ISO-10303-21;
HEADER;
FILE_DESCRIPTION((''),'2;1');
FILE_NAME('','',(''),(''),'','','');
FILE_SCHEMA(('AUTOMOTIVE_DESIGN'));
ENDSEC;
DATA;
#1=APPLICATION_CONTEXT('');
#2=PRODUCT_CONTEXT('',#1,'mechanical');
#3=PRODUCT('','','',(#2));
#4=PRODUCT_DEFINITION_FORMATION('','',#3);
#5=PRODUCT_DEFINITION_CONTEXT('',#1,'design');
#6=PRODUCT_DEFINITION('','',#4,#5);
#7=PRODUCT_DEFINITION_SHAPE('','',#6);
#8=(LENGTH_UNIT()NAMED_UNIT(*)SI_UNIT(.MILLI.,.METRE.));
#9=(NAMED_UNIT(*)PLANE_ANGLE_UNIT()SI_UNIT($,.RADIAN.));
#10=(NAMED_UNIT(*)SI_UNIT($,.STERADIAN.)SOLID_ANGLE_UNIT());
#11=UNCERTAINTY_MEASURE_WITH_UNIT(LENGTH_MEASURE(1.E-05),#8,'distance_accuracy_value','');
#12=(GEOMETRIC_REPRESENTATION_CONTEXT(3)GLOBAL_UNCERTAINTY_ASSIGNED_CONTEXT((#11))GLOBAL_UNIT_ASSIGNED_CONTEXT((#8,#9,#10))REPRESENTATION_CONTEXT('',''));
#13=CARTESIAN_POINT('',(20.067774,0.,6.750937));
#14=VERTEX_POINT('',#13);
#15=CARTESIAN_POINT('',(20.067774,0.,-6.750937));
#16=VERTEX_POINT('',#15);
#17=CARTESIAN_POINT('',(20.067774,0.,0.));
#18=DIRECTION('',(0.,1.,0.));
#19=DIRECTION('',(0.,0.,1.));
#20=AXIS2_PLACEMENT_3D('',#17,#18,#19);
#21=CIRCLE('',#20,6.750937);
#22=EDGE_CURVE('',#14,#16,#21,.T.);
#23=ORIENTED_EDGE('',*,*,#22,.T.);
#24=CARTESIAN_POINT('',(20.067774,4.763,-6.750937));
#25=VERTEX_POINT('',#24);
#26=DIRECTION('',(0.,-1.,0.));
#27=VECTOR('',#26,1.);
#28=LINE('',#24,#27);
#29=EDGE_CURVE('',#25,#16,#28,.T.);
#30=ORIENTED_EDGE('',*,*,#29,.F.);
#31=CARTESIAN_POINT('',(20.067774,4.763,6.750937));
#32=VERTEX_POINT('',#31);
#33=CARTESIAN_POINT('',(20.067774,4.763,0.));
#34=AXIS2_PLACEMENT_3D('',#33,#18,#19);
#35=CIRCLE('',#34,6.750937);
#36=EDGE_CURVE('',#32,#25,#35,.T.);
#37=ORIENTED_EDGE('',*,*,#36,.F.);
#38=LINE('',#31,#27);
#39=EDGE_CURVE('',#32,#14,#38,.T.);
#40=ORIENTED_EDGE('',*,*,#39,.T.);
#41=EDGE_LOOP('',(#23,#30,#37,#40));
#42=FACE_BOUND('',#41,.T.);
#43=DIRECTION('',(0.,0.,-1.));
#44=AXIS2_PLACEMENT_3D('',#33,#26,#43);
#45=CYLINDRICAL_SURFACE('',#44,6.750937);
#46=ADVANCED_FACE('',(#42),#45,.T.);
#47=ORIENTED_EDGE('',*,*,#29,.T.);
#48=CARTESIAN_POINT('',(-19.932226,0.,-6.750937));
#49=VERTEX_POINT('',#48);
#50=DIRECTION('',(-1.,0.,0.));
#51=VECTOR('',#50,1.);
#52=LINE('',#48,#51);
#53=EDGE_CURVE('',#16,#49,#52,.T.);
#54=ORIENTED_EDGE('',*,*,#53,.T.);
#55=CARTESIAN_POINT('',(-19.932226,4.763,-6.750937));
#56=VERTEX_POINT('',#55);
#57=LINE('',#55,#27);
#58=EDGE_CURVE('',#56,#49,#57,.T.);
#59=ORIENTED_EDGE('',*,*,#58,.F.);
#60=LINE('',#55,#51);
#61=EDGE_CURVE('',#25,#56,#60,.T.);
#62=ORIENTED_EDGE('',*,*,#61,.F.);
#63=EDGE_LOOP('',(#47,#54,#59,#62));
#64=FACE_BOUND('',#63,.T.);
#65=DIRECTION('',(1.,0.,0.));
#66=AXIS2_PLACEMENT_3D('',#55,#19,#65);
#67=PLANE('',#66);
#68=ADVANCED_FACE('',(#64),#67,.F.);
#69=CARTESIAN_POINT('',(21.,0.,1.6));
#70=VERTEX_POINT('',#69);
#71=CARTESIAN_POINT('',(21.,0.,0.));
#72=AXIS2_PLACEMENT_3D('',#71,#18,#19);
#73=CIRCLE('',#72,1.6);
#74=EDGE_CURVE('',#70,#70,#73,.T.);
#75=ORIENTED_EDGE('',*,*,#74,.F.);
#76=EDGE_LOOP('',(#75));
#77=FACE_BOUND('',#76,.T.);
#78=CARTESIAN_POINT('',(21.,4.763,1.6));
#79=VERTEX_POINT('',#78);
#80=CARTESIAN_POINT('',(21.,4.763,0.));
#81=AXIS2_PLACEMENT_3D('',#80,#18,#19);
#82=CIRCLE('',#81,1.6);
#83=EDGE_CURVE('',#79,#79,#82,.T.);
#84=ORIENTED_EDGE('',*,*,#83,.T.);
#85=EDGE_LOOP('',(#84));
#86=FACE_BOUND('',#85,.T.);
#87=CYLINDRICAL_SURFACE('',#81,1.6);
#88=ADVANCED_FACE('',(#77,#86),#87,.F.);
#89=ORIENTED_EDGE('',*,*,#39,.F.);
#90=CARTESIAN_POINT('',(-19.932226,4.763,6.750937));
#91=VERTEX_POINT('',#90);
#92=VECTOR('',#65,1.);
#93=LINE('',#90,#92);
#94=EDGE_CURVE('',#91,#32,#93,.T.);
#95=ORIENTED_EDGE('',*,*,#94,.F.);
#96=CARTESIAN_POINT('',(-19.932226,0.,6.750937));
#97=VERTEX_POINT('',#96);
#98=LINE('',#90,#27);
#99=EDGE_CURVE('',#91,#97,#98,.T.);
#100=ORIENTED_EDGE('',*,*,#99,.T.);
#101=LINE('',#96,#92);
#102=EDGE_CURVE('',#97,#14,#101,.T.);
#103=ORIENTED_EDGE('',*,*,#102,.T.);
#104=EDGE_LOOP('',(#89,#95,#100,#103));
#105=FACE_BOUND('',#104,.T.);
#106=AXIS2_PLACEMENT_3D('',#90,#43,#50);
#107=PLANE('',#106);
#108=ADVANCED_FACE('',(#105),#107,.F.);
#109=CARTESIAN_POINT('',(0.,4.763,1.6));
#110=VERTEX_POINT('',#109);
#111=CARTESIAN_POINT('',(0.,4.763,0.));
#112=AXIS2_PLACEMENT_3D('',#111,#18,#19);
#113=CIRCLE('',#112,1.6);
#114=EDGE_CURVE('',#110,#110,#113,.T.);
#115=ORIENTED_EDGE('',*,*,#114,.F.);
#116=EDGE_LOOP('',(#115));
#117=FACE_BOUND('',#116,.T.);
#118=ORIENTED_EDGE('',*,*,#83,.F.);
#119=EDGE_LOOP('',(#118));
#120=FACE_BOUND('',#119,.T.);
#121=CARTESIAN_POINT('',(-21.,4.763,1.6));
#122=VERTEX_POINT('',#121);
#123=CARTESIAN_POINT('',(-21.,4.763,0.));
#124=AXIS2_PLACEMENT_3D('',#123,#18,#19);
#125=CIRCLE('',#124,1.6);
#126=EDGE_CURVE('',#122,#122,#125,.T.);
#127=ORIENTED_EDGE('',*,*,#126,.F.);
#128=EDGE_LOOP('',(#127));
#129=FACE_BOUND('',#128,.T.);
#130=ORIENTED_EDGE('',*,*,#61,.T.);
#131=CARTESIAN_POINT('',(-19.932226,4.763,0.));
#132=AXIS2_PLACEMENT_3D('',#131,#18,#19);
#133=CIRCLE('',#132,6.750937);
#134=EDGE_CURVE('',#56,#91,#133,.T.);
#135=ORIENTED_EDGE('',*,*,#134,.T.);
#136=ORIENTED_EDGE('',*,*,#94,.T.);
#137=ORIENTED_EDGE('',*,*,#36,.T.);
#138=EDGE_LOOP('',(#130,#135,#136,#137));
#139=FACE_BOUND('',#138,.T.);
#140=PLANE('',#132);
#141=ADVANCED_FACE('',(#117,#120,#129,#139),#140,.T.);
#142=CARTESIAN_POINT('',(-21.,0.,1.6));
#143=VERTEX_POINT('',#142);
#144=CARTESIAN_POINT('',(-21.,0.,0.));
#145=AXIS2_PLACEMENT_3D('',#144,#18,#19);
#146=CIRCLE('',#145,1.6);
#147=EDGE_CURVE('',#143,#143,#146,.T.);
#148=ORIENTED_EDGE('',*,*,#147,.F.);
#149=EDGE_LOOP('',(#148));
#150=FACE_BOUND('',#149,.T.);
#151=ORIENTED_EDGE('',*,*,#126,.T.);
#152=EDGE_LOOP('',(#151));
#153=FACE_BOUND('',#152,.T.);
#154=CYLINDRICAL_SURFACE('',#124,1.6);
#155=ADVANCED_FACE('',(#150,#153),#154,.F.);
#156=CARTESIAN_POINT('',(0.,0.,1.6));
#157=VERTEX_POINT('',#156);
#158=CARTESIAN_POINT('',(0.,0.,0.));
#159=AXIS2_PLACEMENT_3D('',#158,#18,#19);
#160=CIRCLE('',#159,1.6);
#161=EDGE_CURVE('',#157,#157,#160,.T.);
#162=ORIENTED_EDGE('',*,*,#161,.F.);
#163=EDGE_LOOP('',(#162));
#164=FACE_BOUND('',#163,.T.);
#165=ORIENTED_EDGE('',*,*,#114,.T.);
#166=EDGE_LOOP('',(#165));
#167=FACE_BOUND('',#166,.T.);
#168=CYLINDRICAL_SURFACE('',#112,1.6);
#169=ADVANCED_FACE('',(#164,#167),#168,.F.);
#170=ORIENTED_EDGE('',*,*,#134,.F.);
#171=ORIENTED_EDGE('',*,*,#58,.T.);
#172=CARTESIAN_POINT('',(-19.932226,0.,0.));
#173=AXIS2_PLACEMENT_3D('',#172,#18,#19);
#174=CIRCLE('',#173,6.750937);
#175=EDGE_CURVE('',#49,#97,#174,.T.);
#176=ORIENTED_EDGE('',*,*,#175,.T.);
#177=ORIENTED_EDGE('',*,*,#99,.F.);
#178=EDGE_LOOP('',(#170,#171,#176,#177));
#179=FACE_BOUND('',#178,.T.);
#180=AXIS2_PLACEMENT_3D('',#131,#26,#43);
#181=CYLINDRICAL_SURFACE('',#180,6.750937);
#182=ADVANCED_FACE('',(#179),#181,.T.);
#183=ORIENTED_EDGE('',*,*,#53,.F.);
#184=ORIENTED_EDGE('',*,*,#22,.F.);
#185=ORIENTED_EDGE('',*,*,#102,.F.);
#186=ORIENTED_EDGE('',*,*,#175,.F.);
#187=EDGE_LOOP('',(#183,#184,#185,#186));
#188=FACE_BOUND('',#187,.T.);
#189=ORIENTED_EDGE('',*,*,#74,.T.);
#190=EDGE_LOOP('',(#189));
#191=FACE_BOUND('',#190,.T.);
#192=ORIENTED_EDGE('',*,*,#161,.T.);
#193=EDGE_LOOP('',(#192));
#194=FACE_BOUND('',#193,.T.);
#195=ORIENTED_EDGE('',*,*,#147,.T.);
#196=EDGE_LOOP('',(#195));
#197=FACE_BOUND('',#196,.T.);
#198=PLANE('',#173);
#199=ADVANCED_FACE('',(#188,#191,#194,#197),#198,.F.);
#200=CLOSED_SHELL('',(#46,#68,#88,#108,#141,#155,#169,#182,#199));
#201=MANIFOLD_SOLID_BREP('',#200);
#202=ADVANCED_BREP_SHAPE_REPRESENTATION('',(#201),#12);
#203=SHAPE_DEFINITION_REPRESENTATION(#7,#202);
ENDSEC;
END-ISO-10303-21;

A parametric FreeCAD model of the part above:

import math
import FreeCAD as App
import Part
import Sketcher
from FreeCAD import Vector
Q = App.Units.Quantity

doc = App.newDocument("Part")
body = doc.addObject("PartDesign::Body", "Body")

# Sketch on XZ plane
sketch1 = doc.addObject("Sketcher::SketchObject", "Sketch")
body.addObject(sketch1)
sketch1.AttachmentSupport = (doc.XZ_Plane, [""])
sketch1.MapMode = "FlatFace"
sketch1.addGeometry(Part.LineSegment(Vector(20, -7, 0), Vector(-20, -7, 0)), False)
sketch1.addGeometry(Part.ArcOfCircle(Part.Circle(Vector(-20, 0, 0), Vector(0, 0, 1), 7), math.radians(90), math.radians(270)), False)
sketch1.addGeometry(Part.LineSegment(Vector(-20, 7, 0), Vector(20, 7, 0)), False)
sketch1.addGeometry(Part.ArcOfCircle(Part.Circle(Vector(20, 0, 0), Vector(0, 0, 1), 7), math.radians(-90), math.radians(90)), False)
sketch1.addConstraint(Sketcher.Constraint("Tangent", 0, 2, 1, 2))
sketch1.addConstraint(Sketcher.Constraint("Tangent", 1, 1, 2, 1))
sketch1.addConstraint(Sketcher.Constraint("Tangent", 2, 2, 3, 2))
sketch1.addConstraint(Sketcher.Constraint("Tangent", 3, 1, 0, 1))
sketch1.addConstraint(Sketcher.Constraint("Horizontal", 0))
sketch1.addConstraint(Sketcher.Constraint("Horizontal", 2))
sketch1.addConstraint(Sketcher.Constraint("PointOnObject", 1, 3, -1))
sketch1.addConstraint(Sketcher.Constraint("DistanceX", 0, 2, 0, 1, Q("40 mm")))
sketch1.addConstraint(Sketcher.Constraint("Radius", 1, Q("6.750937 mm")))
sketch1.addConstraint(Sketcher.Constraint("DistanceX", 1, 3, -1, 1, Q("19.932226 mm")))
pad1 = doc.addObject("PartDesign::Pad", "Pad")
body.addObject(pad1)
pad1.Profile = sketch1
pad1.Length = 4.763
pad1.Reversed = True

# Sketch on XZ plane
sketch2 = doc.addObject("Sketcher::SketchObject", "Sketch001")
body.addObject(sketch2)
sketch2.AttachmentSupport = (doc.XZ_Plane, [""])
sketch2.MapMode = "FlatFace"
sketch2.AttachmentOffset = App.Placement(Vector(0, 0, -4.763), App.Rotation())
sketch2.addGeometry(Part.Circle(Vector(-21, 0, 0), Vector(0, 0, 1), 1.6), False)
sketch2.addGeometry(Part.Circle(Vector(0, 0, 0), Vector(0, 0, 1), 1.6), False)
sketch2.addGeometry(Part.Circle(Vector(21, 0, 0), Vector(0, 0, 1), 1.6), False)
sketch2.addConstraint(Sketcher.Constraint("Coincident", 1, 3, -1, 1))
sketch2.addConstraint(Sketcher.Constraint("Equal", 0, 1))
sketch2.addConstraint(Sketcher.Constraint("Equal", 1, 2))
sketch2.addConstraint(Sketcher.Constraint("Symmetric", 0, 3, 2, 3, -1, 1))
sketch2.addConstraint(Sketcher.Constraint("PointOnObject", 0, 3, -1))
sketch2.addConstraint(Sketcher.Constraint("Diameter", 0, Q("3.2 mm")))
sketch2.addConstraint(Sketcher.Constraint("DistanceX", 0, 3, -1, 1, Q("21 mm")))
doc.recompute()
hole = doc.addObject("PartDesign::Hole", "Hole")
body.addObject(hole)
hole.Profile = sketch2
hole.ThreadType = "None"
hole.Diameter = 3.2
hole.DepthType = "Dimension"
hole.Depth = 4.763
hole.DrillPoint = "Flat"
hole.Reversed = True

doc.recompute()
